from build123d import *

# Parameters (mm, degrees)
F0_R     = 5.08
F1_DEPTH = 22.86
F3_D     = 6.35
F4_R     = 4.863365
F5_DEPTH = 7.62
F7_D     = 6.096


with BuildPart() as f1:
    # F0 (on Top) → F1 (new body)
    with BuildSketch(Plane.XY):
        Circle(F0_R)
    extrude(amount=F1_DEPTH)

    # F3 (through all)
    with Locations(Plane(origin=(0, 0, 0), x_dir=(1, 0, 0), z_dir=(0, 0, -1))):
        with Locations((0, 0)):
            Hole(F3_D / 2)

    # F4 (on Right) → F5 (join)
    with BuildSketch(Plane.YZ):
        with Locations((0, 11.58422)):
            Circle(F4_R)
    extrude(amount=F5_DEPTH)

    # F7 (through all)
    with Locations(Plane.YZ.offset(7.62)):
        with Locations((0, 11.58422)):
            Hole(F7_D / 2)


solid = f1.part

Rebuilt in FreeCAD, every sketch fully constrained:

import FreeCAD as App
import Part
import Sketcher
Q = App.Units.Quantity

doc = App.newDocument("Part")
body = doc.addObject("PartDesign::Body", "Body")

# Sketch on XY plane
sketch1 = doc.addObject("Sketcher::SketchObject", "Sketch")
body.addObject(sketch1)
sketch1.AttachmentSupport = (doc.XY_Plane, [""])
sketch1.MapMode = "FlatFace"
sketch1.addGeometry(Part.Circle(App.Vector(0, 0, 0), App.Vector(0, 0, 1), 5), False)
sketch1.addConstraint(Sketcher.Constraint("Coincident", 0, 3, -1, 1))
sketch1.addConstraint(Sketcher.Constraint("Diameter", 0, Q("0.4 in")))
pad1 = doc.addObject("PartDesign::Pad", "Pad")
body.addObject(pad1)
pad1.Profile = sketch1
pad1.Length = Q("0.9 in")

# Sketch on XY plane
sketch2 = doc.addObject("Sketcher::SketchObject", "Sketch001")
body.addObject(sketch2)
sketch2.AttachmentSupport = (doc.XY_Plane, [""])
sketch2.MapMode = "FlatFace"
sketch2.addGeometry(Part.Circle(App.Vector(0, 0, 0), App.Vector(0, 0, 1), 3.2), False)
sketch2.addConstraint(Sketcher.Constraint("Coincident", 0, 3, -1, 1))
sketch2.addConstraint(Sketcher.Constraint("Diameter", 0, Q("0.25 in")))
doc.recompute()
hole = doc.addObject("PartDesign::Hole", "Hole")
body.addObject(hole)
hole.Profile = sketch2
hole.ThreadType = "None"
hole.Diameter = Q("0.25 in")
hole.DepthType = "ThroughAll"
hole.Reversed = True

# Sketch on YZ plane
sketch3 = doc.addObject("Sketcher::SketchObject", "Sketch002")
body.addObject(sketch3)
sketch3.AttachmentSupport = (doc.YZ_Plane, [""])
sketch3.MapMode = "FlatFace"
sketch3.addGeometry(Part.Circle(App.Vector(0, 11.6, 0), App.Vector(0, 0, 1), 4.9), False)
sketch3.addConstraint(Sketcher.Constraint("PointOnObject", 0, 3, -2))
sketch3.addConstraint(Sketcher.Constraint("Diameter", 0, 9.72673))
sketch3.addConstraint(Sketcher.Constraint("DistanceY", -1, 1, 0, 3, 11.58422))
pad2 = doc.addObject("PartDesign::Pad", "Pad001")
body.addObject(pad2)
pad2.Profile = sketch3
pad2.Length = Q("0.3 in")

# Sketch on YZ plane
sketch4 = doc.addObject("Sketcher::SketchObject", "Sketch003")
body.addObject(sketch4)
sketch4.AttachmentSupport = (doc.YZ_Plane, [""])
sketch4.MapMode = "FlatFace"
sketch4.AttachmentOffset = App.Placement(App.Vector(0, 0, 0.3 * 25.4), App.Rotation())
sketch4.addGeometry(Part.Circle(App.Vector(0, 11.6, 0), App.Vector(0, 0, 1), 3), False)
sketch4.addConstraint(Sketcher.Constraint("PointOnObject", 0, 3, -2))
sketch4.addConstraint(Sketcher.Constraint("Diameter", 0, Q("0.24 in")))
sketch4.addConstraint(Sketcher.Constraint("DistanceY", -1, 1, 0, 3, 11.58422))
doc.recompute()
hole2 = doc.addObject("PartDesign::Hole", "Hole001")
body.addObject(hole2)
hole2.Profile = sketch4
hole2.ThreadType = "None"
hole2.Diameter = Q("0.24 in")
hole2.DepthType = "ThroughAll"

doc.recompute()
